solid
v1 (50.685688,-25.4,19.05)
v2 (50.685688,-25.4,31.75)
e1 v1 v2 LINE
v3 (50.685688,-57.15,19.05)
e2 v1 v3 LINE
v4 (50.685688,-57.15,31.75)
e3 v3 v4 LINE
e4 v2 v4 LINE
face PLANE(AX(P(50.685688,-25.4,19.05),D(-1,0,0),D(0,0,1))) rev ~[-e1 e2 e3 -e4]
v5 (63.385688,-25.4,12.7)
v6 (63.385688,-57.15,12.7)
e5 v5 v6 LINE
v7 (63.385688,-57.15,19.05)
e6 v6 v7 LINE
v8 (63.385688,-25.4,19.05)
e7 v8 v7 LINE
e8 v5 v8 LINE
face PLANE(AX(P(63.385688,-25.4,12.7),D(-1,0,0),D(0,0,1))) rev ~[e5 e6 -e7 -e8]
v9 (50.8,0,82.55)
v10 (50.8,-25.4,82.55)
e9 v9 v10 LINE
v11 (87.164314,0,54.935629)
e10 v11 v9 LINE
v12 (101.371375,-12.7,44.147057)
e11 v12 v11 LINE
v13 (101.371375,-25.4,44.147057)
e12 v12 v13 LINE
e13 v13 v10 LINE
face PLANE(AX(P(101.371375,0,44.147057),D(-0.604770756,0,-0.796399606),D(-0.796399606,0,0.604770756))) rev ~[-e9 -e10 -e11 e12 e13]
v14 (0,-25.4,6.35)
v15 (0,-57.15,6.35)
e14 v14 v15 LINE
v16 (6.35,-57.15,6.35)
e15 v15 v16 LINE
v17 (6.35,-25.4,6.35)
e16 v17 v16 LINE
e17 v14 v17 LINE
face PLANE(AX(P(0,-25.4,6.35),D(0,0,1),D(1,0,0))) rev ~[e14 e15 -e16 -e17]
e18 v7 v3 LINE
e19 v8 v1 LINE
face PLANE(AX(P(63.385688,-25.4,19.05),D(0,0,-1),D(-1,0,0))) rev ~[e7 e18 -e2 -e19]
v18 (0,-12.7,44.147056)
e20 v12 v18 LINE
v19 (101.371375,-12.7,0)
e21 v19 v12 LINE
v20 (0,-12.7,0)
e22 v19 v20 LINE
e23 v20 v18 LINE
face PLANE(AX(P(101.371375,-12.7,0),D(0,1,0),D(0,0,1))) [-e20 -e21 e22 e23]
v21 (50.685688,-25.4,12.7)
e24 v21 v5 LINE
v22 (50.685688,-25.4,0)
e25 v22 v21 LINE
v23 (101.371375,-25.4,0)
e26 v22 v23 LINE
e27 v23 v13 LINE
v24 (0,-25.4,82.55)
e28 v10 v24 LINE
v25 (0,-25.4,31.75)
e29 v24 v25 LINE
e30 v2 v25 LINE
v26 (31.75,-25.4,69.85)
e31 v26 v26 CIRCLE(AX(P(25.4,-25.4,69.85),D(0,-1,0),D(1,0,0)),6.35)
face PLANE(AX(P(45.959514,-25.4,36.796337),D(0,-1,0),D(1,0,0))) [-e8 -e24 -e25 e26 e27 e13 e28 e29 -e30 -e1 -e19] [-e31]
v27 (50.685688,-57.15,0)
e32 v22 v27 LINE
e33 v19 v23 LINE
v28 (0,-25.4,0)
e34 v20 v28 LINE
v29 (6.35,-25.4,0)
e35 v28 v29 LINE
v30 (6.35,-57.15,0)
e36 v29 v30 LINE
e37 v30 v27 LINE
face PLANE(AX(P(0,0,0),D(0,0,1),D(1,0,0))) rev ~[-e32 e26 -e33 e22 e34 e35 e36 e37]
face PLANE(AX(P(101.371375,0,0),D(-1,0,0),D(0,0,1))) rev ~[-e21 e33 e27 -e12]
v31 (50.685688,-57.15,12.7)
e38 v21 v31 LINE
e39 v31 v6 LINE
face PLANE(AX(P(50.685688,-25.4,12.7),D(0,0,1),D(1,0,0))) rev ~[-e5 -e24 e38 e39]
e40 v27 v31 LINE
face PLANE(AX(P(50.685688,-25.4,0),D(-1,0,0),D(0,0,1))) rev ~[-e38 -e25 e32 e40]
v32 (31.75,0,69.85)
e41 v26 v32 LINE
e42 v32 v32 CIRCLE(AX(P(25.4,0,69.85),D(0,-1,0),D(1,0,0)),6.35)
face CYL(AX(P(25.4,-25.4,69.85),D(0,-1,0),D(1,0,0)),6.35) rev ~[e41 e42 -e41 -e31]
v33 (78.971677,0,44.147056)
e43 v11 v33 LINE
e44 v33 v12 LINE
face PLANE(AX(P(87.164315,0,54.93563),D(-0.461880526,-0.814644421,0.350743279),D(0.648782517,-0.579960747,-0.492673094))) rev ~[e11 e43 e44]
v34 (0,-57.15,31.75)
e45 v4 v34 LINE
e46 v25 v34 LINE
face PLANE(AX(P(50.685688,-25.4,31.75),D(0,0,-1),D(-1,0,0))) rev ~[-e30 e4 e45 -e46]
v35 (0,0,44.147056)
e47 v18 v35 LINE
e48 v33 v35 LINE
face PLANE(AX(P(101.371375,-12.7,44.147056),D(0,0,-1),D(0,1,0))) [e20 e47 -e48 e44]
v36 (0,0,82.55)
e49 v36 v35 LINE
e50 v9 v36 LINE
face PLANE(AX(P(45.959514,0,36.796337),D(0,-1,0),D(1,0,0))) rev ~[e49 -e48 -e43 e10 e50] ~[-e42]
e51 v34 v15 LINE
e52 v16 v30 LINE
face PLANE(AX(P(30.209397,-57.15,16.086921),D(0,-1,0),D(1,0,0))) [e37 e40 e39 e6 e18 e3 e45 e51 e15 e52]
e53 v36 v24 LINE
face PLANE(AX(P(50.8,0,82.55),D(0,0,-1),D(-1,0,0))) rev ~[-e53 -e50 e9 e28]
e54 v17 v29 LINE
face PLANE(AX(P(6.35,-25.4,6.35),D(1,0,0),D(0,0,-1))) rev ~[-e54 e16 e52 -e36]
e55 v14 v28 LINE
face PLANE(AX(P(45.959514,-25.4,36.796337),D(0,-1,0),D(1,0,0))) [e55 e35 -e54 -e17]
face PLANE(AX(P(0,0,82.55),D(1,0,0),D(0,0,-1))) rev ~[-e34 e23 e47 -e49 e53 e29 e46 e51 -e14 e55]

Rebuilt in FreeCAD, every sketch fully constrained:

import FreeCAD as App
import Part
import Sketcher
Q = App.Units.Quantity

doc = App.newDocument("Part")
body = doc.addObject("PartDesign::Body", "Body")

# Sketch on XZ plane
sketch1 = body.newObject("Sketcher::SketchObject", "Sketch")
sketch1.AttachmentSupport = (doc.getObject("XZ_Plane"), [""])
sketch1.MapMode = "FlatFace"
sketch1.addGeometry([
    Part.LineSegment(App.Vector(0, 83, 0), App.Vector(0, 0, 0)),  # 0
    Part.LineSegment(App.Vector(0, 0, 0), App.Vector(101, 0, 0)),  # 1
    Part.LineSegment(App.Vector(101, 0, 0), App.Vector(101, 44, 0)),  # 2
    Part.LineSegment(App.Vector(101, 44, 0), App.Vector(51, 83, 0)),  # 3
    Part.LineSegment(App.Vector(51, 83, 0), App.Vector(0, 83, 0)),  # 4
], False)
sketch1.addConstraint([
    Sketcher.Constraint("Coincident", 0, 2, 1, 1),
    Sketcher.Constraint("Coincident", 1, 2, 2, 1),
    Sketcher.Constraint("Coincident", 2, 2, 3, 1),
    Sketcher.Constraint("Coincident", 3, 2, 4, 1),
    Sketcher.Constraint("Coincident", 4, 2, 0, 1),
    Sketcher.Constraint("Vertical", 0),
    Sketcher.Constraint("Horizontal", 1),
    Sketcher.Constraint("Vertical", 2),
    Sketcher.Constraint("Horizontal", 4),
    Sketcher.Constraint("Coincident", 0, 2, -1, 1),
    Sketcher.Constraint("DistanceX", 4, 2, 4, 1, Q("2 in")),
    Sketcher.Constraint("Distance", 3, Q("2.5 in")),
    Sketcher.Constraint("DistanceY", 0, 2, 0, 1, Q("3.25 in")),
    Sketcher.Constraint("DistanceX", 1, 1, 1, 2, 101.371375),
])
pad1 = body.newObject("PartDesign::Pad", "Pad")
pad1.Profile = sketch1
pad1.Length = Q("1 in")

# Sketch on an angled plane
sketch2 = body.newObject("Sketcher::SketchObject", "Sketch001")
sketch2.Placement = App.Placement(App.Vector(58.339296, 0, 76.824801), App.Rotation(App.Vector(0.796399633, 0, -0.604770721), App.Vector(0, 1, 0), App.Vector(0.604770721, 0, 0.796399633), "ZXY"))
sketch2.addGeometry([
    Part.LineSegment(App.Vector(36, 0, 0), App.Vector(54, -13, 0)),
    Part.LineSegment(App.Vector(54, -13, 0), App.Vector(54, 0, 0)),
    Part.LineSegment(App.Vector(54, 0, 0), App.Vector(36, 0, 0)),
], False)
sketch2.addConstraint([
    Sketcher.Constraint("Coincident", 0, 2, 1, 1),
    Sketcher.Constraint("Coincident", 1, 2, 2, 1),
    Sketcher.Constraint("Coincident", 2, 2, 0, 1),
    Sketcher.Constraint("Vertical", 1),
    Sketcher.Constraint("Horizontal", 2),
    Sketcher.Constraint("PointOnObject", 1, 2, -1),
    Sketcher.Constraint("DistanceY", 1, 1, 1, 2, Q("0.5 in")),
    Sketcher.Constraint("DistanceX", 2, 2, 2, 1, 17.839111),
    Sketcher.Constraint("DistanceX", -1, 1, 0, 2, 54.033275),
])
pocket1 = body.newObject("PartDesign::Pocket", "Pocket")
pocket1.Profile = sketch2
pocket1.Type = "ThroughAll"

# Sketch on YZ plane
sketch3 = body.newObject("Sketcher::SketchObject", "Sketch002")
sketch3.AttachmentSupport = (doc.getObject("YZ_Plane"), [""])
sketch3.MapMode = "FlatFace"
sketch3.AttachmentOffset = App.Placement(App.Vector(0, 0, 101.371375), App.Rotation())
sketch3.addGeometry([
    Part.LineSegment(App.Vector(-13, 44, 0), App.Vector(-13, 0, 0)),
    Part.LineSegment(App.Vector(-13, 0, 0), App.Vector(0, 0, 0)),
    Part.LineSegment(App.Vector(0, 0, 0), App.Vector(0, 44, 0)),
    Part.LineSegment(App.Vector(0, 44, 0), App.Vector(-13, 44, 0)),
], False)
sketch3.addConstraint([
    Sketcher.Constraint("Coincident", 0, 2, 1, 1),
    Sketcher.Constraint("Coincident", 1, 2, 2, 1),
    Sketcher.Constraint("Coincident", 2, 2, 3, 1),
    Sketcher.Constraint("Coincident", 3, 2, 0, 1),
    Sketcher.Constraint("Vertical", 0),
    Sketcher.Constraint("Horizontal", 1),
    Sketcher.Constraint("Vertical", 2),
    Sketcher.Constraint("Horizontal", 3),
    Sketcher.Constraint("Coincident", 1, 2, -1, 1),
    Sketcher.Constraint("DistanceX", 1, 1, 1, 2, Q("0.5 in")),
    Sketcher.Constraint("DistanceY", 0, 2, 0, 1, 44.147057),
])
pocket2 = body.newObject("PartDesign::Pocket", "Pocket001")
pocket2.Profile = sketch3
pocket2.Type = "ThroughAll"

# Sketch on XZ plane
sketch4 = body.newObject("Sketcher::SketchObject", "Sketch003")
sketch4.AttachmentSupport = (doc.getObject("XZ_Plane"), [""])
sketch4.MapMode = "FlatFace"
sketch4.AttachmentOffset = App.Placement(App.Vector(0, 0, 1 * 25.4), App.Rotation())
sketch4.addGeometry(Part.Circle(App.Vector(25, 70, 0), App.Vector(0, 0, 1), 6), False)
sketch4.addConstraint([
    Sketcher.Constraint("Diameter", 0, Q("0.5 in")),
    Sketcher.Constraint("DistanceX", -1, 1, 0, 3, Q("1 in")),
    Sketcher.Constraint("DistanceY", -1, 1, 0, 3, Q("2.75 in")),
])
pocket3 = body.newObject("PartDesign::Pocket", "Pocket002")
pocket3.Profile = sketch4
pocket3.Type = "ThroughAll"

# Sketch on XZ plane
sketch5 = body.newObject("Sketcher::SketchObject", "Sketch004")
sketch5.AttachmentSupport = (doc.getObject("XZ_Plane"), [""])
sketch5.MapMode = "FlatFace"
sketch5.AttachmentOffset = App.Placement(App.Vector(0, 0, 1 * 25.4), App.Rotation())
sketch5.addGeometry([
    Part.LineSegment(App.Vector(51, 32, 0), App.Vector(0, 32, 0)),  # 0
    Part.LineSegment(App.Vector(0, 32, 0), App.Vector(0, 6, 0)),  # 1
    Part.LineSegment(App.Vector(0, 6, 0), App.Vector(6, 6, 0)),  # 2
    Part.LineSegment(App.Vector(6, 6, 0), App.Vector(6, 0, 0)),  # 3
    Part.LineSegment(App.Vector(6, 0, 0), App.Vector(51, 0, 0)),  # 4
    Part.LineSegment(App.Vector(51, 0, 0), App.Vector(51, 13, 0)),  # 5
    Part.LineSegment(App.Vector(51, 13, 0), App.Vector(63, 13, 0)),  # 6
    Part.LineSegment(App.Vector(63, 13, 0), App.Vector(63, 19, 0)),  # 7
    Part.LineSegment(App.Vector(63, 19, 0), App.Vector(51, 19, 0)),  # 8
    Part.LineSegment(App.Vector(51, 19, 0), App.Vector(51, 32, 0)),  # 9
], False)
sketch5.addConstraint([
    Sketcher.Constraint("Coincident", 0, 2, 1, 1),
    Sketcher.Constraint("Coincident", 1, 2, 2, 1),
    Sketcher.Constraint("Coincident", 2, 2, 3, 1),
    Sketcher.Constraint("Coincident", 3, 2, 4, 1),
    Sketcher.Constraint("Coincident", 4, 2, 5, 1),
    Sketcher.Constraint("Coincident", 5, 2, 6, 1),
    Sketcher.Constraint("Coincident", 6, 2, 7, 1),
    Sketcher.Constraint("Coincident", 7, 2, 8, 1),
    Sketcher.Constraint("Coincident", 8, 2, 9, 1),
    Sketcher.Constraint("Coincident", 9, 2, 0, 1),
    Sketcher.Constraint("Horizontal", 0),
    Sketcher.Constraint("Vertical", 1),
    Sketcher.Constraint("Horizontal", 2),
    Sketcher.Constraint("Vertical", 3),
    Sketcher.Constraint("Horizontal", 4),
    Sketcher.Constraint("Vertical", 5),
    Sketcher.Constraint("Horizontal", 6),
    Sketcher.Constraint("Vertical", 7),
    Sketcher.Constraint("Horizontal", 8),
    Sketcher.Constraint("Vertical", 9),
    Sketcher.Constraint("PointOnObject", 0, 2, -2),
    Sketcher.Constraint("PointOnObject", 3, 2, -1),
    Sketcher.Constraint("Vertical", 5, 2, 8, 2),
    Sketcher.Constraint("Equal", 2, 3),
    Sketcher.Constraint("Equal", 8, 5),
    Sketcher.Constraint("Equal", 3, 7),
    Sketcher.Constraint("Equal", 5, 9),
    Sketcher.Constraint("DistanceY", 1, 2, 1, 1, Q("1 in")),
    Sketcher.Constraint("DistanceX", 2, 1, 2, 2, Q("0.25 in")),
    Sketcher.Constraint("DistanceX", 0, 2, 0, 1, 50.685688),
])
pad2 = body.newObject("PartDesign::Pad", "Pad001")
pad2.Profile = sketch5
pad2.Length = Q("1.25 in")

doc.recompute()
